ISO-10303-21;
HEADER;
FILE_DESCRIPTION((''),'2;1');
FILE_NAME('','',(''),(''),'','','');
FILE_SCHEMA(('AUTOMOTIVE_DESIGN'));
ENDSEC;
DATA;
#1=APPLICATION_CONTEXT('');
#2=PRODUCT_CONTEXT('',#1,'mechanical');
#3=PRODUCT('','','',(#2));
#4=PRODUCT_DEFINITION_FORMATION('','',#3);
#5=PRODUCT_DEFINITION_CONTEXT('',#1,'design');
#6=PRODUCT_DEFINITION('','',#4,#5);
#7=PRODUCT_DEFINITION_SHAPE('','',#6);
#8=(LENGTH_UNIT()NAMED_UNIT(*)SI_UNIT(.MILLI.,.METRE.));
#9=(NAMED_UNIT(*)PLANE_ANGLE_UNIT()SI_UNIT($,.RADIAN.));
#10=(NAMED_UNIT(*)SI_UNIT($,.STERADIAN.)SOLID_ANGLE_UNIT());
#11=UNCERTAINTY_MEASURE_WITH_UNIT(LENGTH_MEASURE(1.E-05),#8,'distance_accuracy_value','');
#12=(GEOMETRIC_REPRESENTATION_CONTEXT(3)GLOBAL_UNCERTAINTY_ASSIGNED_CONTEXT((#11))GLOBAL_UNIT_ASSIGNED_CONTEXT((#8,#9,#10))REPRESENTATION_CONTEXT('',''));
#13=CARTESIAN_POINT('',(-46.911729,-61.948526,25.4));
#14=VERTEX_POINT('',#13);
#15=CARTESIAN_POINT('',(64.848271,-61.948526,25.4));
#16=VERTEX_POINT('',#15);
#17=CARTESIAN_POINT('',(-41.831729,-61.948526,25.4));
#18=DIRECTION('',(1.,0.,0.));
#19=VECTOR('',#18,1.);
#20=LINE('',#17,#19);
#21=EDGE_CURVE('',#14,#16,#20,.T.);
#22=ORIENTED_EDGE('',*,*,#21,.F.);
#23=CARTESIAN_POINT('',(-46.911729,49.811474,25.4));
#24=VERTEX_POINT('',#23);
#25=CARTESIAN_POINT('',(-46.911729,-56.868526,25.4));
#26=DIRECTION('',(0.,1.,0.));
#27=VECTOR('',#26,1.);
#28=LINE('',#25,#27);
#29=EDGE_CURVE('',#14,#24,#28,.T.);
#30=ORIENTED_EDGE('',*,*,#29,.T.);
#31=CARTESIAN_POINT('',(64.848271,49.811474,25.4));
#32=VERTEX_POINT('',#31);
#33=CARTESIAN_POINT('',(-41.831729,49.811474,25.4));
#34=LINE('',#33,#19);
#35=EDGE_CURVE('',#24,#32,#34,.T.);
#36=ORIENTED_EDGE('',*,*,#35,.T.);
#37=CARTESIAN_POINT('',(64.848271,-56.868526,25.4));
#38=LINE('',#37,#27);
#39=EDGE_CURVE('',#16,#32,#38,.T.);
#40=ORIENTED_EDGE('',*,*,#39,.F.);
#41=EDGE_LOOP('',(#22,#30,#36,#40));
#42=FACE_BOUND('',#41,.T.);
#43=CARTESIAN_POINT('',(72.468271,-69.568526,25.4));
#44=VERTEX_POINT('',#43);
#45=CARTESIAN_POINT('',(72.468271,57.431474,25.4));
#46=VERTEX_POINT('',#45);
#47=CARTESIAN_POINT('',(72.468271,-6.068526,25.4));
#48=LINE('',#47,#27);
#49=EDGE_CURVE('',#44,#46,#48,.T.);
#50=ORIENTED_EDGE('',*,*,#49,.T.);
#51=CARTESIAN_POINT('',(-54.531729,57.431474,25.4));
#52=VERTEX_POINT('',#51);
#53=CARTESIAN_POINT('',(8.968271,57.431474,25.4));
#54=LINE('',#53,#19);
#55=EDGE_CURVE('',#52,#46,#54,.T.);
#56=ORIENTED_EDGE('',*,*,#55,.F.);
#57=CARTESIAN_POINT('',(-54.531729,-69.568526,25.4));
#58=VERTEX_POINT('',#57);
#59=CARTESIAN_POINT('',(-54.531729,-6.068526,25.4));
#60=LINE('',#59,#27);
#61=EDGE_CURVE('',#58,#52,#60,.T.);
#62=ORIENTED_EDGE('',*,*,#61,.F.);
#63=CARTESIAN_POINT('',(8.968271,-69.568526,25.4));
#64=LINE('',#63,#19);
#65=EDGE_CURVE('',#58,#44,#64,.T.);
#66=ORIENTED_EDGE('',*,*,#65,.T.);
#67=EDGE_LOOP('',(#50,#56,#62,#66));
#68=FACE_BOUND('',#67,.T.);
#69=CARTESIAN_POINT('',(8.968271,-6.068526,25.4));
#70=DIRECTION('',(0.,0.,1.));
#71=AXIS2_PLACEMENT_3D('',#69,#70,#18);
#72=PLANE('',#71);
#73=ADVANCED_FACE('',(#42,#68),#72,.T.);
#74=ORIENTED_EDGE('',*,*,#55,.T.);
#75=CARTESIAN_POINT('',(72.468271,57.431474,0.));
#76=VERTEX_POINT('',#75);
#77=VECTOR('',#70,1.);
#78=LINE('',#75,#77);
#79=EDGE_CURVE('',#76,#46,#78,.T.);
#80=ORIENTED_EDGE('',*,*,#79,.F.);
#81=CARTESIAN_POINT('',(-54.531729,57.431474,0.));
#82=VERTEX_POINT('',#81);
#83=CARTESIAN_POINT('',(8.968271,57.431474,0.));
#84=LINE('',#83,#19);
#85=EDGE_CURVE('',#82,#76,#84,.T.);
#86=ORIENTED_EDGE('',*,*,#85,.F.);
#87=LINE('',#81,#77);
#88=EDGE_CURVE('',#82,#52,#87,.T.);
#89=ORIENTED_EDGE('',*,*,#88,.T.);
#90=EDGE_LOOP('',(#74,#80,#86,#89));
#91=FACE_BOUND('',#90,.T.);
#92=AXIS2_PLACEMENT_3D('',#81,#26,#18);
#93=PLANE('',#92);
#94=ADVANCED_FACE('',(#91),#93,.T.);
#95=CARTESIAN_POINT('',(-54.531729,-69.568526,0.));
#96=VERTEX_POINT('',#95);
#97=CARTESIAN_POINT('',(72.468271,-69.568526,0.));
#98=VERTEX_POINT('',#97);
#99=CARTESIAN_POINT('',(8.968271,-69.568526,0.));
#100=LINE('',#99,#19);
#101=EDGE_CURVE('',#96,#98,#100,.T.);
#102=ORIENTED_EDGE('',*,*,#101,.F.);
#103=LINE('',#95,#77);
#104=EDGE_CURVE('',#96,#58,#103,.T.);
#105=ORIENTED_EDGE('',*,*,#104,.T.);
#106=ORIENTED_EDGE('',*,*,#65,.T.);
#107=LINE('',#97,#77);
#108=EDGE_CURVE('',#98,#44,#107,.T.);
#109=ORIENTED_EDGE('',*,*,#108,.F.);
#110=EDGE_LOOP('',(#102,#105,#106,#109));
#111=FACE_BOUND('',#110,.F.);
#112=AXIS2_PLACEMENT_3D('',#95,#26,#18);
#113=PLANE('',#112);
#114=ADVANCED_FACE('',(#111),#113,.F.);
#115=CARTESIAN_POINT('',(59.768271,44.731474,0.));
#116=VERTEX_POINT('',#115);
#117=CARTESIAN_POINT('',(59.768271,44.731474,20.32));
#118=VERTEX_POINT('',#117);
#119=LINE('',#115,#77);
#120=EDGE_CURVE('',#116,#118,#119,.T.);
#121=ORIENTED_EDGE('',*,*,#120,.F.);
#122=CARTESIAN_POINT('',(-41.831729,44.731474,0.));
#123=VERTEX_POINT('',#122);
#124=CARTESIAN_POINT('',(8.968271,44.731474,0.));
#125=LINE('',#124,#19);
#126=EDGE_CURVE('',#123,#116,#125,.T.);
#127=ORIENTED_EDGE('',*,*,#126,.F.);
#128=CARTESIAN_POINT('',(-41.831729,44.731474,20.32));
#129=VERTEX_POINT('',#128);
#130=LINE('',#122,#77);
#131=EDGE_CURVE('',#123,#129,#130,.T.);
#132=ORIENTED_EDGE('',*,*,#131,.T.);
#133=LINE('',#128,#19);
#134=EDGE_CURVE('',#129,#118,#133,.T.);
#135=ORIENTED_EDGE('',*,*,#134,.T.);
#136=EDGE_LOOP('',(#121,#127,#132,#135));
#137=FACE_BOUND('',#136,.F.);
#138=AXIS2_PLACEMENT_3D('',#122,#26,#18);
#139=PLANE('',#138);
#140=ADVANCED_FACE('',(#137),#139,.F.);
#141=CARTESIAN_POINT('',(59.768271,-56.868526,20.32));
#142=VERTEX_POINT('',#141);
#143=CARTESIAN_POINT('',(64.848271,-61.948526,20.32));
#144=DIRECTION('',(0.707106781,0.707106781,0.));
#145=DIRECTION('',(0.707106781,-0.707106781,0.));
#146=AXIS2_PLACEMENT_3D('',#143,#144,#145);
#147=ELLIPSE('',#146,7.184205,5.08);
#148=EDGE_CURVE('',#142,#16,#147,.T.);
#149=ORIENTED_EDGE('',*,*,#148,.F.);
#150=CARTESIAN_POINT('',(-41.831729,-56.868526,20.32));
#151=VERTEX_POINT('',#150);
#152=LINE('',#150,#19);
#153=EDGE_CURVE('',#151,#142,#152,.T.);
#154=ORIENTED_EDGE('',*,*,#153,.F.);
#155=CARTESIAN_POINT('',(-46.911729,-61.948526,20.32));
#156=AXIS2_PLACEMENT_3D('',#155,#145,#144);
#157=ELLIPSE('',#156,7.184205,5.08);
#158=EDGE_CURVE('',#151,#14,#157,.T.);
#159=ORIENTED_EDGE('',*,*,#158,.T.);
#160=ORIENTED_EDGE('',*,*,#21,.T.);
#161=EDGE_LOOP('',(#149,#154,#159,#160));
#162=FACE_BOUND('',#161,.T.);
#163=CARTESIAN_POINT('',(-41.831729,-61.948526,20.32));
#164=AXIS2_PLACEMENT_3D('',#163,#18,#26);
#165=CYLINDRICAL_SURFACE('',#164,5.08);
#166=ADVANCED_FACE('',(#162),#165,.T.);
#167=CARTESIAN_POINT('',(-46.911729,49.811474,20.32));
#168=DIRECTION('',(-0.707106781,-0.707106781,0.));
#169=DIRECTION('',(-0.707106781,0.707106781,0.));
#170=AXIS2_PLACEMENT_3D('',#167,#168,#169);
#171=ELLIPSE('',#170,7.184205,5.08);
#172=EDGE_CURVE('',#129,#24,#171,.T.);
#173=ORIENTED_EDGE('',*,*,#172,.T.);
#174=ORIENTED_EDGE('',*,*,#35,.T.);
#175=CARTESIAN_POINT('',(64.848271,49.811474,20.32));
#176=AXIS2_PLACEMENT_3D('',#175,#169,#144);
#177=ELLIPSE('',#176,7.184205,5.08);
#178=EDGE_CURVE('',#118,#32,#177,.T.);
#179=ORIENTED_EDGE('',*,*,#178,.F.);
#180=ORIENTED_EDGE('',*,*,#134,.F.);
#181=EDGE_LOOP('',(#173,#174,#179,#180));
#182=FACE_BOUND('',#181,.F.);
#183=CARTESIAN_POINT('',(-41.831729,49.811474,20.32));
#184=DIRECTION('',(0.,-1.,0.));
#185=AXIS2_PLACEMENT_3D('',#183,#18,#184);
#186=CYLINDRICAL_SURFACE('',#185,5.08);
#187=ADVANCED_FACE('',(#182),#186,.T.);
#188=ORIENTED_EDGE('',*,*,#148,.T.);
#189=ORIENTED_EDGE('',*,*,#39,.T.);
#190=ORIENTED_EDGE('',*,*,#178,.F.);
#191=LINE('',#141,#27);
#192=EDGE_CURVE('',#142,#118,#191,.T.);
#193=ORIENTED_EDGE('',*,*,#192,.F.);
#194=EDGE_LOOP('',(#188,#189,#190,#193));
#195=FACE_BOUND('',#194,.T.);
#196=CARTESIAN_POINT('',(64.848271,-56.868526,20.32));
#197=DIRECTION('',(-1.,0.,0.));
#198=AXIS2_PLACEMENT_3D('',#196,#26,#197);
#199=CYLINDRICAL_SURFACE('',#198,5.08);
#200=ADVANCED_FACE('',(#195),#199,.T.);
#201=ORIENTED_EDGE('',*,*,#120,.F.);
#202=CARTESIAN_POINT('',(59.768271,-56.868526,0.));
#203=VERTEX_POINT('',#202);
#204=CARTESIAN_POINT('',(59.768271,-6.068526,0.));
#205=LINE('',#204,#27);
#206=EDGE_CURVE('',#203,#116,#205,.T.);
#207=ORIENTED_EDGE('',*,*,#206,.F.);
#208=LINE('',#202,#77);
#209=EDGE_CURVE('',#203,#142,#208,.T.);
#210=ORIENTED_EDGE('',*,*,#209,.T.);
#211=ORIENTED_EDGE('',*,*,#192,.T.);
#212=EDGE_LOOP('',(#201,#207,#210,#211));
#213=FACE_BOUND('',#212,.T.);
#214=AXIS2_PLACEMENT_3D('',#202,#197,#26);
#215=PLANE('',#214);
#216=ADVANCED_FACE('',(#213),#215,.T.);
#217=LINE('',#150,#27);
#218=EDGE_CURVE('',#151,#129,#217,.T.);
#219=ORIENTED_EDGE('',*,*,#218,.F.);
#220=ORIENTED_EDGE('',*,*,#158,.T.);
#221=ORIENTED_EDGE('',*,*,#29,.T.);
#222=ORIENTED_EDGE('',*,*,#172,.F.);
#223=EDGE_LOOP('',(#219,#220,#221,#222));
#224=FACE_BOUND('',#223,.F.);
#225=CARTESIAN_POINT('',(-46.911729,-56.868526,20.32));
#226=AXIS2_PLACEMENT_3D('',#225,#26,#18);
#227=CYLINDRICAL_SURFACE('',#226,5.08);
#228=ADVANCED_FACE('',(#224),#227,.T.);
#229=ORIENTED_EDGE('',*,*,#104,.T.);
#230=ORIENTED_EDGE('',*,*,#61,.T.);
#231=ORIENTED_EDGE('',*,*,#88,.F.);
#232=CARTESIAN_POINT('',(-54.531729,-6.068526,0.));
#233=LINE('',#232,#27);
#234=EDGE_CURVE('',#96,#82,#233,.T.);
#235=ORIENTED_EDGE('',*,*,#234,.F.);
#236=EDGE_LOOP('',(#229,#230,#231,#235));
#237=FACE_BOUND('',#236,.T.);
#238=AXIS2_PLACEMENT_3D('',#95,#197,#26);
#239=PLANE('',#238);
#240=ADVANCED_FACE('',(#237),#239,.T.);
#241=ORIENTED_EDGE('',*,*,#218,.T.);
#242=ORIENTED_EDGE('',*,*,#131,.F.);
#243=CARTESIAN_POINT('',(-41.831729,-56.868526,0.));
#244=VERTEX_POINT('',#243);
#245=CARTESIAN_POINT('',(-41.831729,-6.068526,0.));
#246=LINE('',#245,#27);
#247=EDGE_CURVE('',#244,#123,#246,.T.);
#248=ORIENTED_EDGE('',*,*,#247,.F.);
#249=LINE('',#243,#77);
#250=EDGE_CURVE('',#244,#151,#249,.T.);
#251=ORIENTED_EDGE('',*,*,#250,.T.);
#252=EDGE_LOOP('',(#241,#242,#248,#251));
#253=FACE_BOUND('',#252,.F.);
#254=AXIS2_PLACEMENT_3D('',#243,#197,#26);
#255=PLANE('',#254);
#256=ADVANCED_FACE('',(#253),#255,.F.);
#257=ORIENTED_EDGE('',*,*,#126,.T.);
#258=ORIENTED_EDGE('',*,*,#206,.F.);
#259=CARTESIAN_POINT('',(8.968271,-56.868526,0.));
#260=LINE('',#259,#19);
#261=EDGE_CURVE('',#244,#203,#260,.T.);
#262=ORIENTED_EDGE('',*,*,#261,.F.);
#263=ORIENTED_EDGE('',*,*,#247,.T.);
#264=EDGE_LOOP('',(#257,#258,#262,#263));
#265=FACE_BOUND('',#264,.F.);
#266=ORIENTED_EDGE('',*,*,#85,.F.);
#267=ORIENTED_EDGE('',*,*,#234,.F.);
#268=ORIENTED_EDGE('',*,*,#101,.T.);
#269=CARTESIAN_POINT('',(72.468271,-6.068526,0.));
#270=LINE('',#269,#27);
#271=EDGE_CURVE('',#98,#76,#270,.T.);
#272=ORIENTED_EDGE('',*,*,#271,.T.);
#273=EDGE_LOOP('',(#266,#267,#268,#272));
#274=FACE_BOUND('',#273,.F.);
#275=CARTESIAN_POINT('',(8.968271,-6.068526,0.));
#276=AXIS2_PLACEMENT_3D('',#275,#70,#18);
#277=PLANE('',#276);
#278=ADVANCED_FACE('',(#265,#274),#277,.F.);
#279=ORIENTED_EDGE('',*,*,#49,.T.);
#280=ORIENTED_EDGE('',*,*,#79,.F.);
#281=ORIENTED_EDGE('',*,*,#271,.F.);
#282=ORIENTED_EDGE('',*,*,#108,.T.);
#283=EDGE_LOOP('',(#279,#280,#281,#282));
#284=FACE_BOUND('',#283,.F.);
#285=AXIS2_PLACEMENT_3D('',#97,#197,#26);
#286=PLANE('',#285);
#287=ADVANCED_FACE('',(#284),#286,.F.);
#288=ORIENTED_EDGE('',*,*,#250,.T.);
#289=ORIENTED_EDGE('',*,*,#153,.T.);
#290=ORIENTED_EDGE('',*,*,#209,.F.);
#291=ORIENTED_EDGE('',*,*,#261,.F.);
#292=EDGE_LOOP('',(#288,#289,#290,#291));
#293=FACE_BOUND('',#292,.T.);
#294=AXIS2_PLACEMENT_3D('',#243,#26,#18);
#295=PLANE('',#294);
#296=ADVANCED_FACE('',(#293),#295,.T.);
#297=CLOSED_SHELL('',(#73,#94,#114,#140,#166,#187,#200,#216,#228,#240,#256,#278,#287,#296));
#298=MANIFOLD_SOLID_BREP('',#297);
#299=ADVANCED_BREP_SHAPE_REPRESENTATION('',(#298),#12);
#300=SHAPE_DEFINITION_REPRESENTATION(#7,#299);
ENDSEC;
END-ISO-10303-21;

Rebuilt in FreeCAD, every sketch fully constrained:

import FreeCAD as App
import Part
import Sketcher
Q = App.Units.Quantity


def edges_at(feature, points):
    """Names of the edges that pass closest to the given points."""
    edges = feature.Shape.Edges
    near = lambda p: min(range(len(edges)), key=lambda i: edges[i].distToShape(Part.Vertex(*p))[0])
    return sorted({f"Edge{near(p) + 1}" for p in points})


def add_polygon(sketch, points):
    """Adds a closed chain of lines whose ends are joined by coincident constraints."""
    first, n = sketch.GeometryCount, len(points)
    for a, b in zip(points, points[1:] + points[:1]):
        sketch.addGeometry(Part.LineSegment(App.Vector(*a, 0), App.Vector(*b, 0)), False)
    for i in range(n):
        sketch.addConstraint(Sketcher.Constraint("Coincident", first + i, 2, first + (i + 1) % n, 1))

doc = App.newDocument("Part")
body = doc.addObject("PartDesign::Body", "Body")

sketch1 = body.newObject("Sketcher::SketchObject", "Sketch")
sketch1.AttachmentSupport = (doc.getObject("XY_Plane"), [""])
sketch1.MapMode = "FlatFace"
add_polygon(sketch1, [(-55, 57), (-55, -70), (72, -70), (72, 57)])
add_polygon(sketch1, [(60, -57), (-42, -57), (-42, 45), (60, 45)])
sketch1.addConstraint([
    Sketcher.Constraint("Vertical", 0),
    Sketcher.Constraint("Horizontal", 1),
    Sketcher.Constraint("Vertical", 2),
    Sketcher.Constraint("Horizontal", 3),
    Sketcher.Constraint("Horizontal", 4),
    Sketcher.Constraint("Vertical", 5),
    Sketcher.Constraint("Horizontal", 6),
    Sketcher.Constraint("Vertical", 7),
    Sketcher.Constraint("Equal", 3, 0),
    Sketcher.Constraint("Equal", 6, 5),
    Sketcher.Constraint("DistanceX", 1, 1, 1, 2, Q("5 in")),
    Sketcher.Constraint("DistanceX", 4, 2, 4, 1, Q("4 in")),
    Sketcher.Constraint("DistanceX", 0, 2, 4, 2, Q("0.5 in")),
    Sketcher.Constraint("DistanceY", 0, 2, 4, 2, Q("0.5 in")),
    Sketcher.Constraint("DistanceX", 0, 2, -1, 1, Q("54.531729 mm")),
    Sketcher.Constraint("DistanceY", 0, 2, -1, 1, Q("69.568526 mm")),
])
pad1 = body.newObject("PartDesign::Pad", "Pad")
pad1.Profile = sketch1
pad1.Length = Q("1 in")
doc.recompute()

fillet = body.newObject("PartDesign::Fillet", "Fillet")
fillet.Base = (pad1, edges_at(pad1, [
    (8.968, -56.869, 25.4),
    (59.768, -6.069, 25.4),
    (-41.832, -6.069, 25.4),
    (8.968, 44.731, 25.4),
]))
fillet.Radius = Q("0.2 in")

doc.recompute()
